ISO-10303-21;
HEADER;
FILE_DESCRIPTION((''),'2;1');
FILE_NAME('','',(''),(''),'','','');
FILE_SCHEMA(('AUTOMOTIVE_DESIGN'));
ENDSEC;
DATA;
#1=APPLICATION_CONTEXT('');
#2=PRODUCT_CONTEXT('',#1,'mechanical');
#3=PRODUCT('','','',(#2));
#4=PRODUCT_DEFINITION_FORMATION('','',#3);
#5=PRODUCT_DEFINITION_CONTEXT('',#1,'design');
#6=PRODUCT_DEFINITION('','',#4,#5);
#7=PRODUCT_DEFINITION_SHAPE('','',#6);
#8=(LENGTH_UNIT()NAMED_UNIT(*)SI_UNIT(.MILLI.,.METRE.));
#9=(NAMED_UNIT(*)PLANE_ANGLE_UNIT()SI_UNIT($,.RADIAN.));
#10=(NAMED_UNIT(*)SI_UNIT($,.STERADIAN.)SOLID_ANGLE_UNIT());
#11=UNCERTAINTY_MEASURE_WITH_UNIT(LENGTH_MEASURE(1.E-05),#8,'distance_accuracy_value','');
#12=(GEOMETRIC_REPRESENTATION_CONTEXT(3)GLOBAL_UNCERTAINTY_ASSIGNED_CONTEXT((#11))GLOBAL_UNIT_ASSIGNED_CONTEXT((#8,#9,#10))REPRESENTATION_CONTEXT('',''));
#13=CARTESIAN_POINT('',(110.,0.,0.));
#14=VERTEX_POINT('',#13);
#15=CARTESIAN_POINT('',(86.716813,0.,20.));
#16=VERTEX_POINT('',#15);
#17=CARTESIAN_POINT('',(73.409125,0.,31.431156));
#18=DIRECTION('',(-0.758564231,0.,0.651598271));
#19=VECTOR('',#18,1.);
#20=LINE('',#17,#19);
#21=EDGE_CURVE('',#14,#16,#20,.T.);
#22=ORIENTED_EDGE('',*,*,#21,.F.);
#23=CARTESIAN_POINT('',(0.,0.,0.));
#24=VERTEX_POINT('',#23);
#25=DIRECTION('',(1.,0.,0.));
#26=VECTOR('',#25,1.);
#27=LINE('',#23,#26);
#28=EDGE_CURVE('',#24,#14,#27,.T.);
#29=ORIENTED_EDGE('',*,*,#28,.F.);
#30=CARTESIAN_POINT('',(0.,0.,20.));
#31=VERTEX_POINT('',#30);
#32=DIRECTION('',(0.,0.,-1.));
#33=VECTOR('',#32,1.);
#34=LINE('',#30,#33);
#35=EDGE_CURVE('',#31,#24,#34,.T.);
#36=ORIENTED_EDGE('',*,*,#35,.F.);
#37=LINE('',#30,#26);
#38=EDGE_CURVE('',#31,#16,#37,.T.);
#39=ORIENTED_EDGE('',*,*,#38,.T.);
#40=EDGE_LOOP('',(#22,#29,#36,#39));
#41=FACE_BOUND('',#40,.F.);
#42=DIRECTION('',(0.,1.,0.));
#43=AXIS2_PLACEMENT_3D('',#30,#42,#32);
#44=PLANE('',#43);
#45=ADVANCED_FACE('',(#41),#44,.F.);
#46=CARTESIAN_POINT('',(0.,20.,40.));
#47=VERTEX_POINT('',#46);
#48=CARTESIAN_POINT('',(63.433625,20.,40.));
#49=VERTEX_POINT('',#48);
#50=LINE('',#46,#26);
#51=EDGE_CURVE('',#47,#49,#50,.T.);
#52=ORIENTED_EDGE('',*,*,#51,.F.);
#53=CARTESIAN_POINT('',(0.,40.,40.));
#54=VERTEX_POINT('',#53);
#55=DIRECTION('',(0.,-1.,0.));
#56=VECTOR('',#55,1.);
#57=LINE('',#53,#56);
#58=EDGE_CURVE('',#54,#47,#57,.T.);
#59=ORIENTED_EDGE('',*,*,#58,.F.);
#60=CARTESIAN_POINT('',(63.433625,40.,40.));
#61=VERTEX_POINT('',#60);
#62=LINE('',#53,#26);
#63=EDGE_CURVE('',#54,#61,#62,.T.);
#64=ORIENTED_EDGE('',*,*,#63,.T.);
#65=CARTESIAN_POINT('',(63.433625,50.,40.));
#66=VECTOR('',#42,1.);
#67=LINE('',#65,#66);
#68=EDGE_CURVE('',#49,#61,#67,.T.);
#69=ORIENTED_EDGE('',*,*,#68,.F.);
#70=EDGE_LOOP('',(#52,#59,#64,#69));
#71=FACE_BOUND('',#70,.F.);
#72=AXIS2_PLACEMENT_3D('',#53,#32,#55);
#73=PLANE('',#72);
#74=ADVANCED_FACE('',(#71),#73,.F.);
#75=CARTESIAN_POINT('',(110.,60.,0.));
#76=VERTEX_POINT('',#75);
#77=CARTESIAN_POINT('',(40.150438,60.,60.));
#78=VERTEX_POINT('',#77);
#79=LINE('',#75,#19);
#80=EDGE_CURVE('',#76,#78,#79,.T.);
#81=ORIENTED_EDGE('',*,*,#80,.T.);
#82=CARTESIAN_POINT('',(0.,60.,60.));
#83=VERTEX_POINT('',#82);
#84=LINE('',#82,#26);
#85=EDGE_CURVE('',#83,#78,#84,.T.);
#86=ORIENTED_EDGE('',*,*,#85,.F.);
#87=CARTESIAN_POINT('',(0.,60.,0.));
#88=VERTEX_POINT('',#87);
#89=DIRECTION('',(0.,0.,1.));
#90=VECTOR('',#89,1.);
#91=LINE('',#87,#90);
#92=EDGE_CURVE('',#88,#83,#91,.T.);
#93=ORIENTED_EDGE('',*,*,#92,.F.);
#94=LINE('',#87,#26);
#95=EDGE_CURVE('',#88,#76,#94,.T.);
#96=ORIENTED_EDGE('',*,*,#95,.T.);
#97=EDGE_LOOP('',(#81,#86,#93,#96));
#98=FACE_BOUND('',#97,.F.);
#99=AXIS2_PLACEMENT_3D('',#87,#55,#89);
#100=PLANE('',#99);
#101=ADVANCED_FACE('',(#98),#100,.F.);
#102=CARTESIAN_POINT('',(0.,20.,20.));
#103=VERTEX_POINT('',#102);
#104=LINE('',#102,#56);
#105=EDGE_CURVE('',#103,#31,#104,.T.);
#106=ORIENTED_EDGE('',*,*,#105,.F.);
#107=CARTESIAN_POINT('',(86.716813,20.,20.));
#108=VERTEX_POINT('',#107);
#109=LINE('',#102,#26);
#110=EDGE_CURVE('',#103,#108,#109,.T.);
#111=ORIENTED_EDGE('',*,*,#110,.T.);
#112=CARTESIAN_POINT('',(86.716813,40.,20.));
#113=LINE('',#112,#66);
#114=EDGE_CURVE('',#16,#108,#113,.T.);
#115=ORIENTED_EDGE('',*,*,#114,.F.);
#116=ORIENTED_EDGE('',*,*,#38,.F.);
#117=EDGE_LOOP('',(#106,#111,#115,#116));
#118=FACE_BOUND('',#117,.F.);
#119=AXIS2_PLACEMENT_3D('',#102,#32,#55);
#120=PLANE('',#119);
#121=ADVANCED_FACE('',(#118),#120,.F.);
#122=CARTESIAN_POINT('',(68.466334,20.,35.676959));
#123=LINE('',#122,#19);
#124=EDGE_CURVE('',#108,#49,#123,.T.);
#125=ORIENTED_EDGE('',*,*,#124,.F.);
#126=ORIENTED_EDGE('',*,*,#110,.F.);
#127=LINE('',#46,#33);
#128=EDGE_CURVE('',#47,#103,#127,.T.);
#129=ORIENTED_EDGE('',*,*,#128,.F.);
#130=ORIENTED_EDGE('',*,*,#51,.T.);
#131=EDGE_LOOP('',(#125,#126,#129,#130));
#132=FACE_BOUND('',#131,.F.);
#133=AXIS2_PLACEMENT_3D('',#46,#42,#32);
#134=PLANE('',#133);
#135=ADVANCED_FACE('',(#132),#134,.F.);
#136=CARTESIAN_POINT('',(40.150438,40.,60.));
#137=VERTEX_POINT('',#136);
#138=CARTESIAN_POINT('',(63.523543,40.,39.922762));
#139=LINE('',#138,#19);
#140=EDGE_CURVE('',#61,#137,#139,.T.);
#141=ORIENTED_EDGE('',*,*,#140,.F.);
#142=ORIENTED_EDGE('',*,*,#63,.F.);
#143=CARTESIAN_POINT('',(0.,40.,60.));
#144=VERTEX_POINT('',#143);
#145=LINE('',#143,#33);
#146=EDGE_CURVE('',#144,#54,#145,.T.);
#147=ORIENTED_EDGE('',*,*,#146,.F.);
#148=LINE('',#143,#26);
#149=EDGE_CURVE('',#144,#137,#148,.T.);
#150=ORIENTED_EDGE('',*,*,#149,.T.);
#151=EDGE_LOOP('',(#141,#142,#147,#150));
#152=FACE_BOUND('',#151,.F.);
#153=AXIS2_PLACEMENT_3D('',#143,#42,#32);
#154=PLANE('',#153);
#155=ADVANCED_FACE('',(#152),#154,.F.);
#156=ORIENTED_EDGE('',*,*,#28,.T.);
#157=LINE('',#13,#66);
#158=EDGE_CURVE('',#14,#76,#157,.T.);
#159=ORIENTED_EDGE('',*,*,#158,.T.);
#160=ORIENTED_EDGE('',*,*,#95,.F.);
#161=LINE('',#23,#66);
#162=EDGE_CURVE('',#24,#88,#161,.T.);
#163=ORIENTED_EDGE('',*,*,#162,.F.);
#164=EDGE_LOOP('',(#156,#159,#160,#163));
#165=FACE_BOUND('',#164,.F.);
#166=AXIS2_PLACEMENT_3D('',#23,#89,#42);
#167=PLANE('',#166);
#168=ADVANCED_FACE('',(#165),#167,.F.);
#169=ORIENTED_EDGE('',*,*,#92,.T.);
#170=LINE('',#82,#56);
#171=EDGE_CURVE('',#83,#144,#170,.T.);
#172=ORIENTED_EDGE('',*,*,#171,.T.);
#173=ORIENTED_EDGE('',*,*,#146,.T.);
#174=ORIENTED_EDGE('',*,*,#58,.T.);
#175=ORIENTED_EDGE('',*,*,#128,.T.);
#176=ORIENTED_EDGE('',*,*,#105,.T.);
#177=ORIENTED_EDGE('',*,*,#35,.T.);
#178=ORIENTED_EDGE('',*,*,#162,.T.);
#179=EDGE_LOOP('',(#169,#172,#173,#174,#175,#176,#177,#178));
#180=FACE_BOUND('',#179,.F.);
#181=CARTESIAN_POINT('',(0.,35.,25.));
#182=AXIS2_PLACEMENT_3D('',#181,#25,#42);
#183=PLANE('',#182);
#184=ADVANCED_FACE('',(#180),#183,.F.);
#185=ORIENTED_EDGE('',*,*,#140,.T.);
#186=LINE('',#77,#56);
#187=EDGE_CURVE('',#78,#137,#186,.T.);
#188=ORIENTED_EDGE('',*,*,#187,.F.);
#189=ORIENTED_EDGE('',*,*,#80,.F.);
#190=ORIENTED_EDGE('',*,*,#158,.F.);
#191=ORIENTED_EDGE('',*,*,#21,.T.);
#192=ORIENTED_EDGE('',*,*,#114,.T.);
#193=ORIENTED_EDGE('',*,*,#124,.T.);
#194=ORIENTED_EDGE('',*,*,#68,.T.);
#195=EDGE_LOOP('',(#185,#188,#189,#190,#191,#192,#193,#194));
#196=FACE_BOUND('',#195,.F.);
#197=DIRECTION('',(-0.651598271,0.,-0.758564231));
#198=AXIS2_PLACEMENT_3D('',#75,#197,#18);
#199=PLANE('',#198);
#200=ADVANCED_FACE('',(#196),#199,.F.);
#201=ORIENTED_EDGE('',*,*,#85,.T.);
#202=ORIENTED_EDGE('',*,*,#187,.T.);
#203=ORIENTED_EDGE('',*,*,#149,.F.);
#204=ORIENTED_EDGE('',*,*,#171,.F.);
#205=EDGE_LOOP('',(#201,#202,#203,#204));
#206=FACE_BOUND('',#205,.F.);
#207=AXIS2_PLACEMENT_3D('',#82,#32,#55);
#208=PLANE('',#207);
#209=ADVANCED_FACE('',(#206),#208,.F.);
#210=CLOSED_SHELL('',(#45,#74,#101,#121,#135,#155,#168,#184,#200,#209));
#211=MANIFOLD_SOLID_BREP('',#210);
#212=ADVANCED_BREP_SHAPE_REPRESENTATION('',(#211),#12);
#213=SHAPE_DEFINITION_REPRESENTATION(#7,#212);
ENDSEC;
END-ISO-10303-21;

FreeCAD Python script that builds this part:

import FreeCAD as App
import Part
import Sketcher
from FreeCAD import Vector
Q = App.Units.Quantity

doc = App.newDocument("Part")
params = doc.addObject("Spreadsheet::Sheet", "Params")
for row, (alias, value) in enumerate([
    ("sketch1_width", "60 mm"),
    ("pad1_length", "110 mm"),
    ("sketch2_height", "60 mm"),
], start=1):
    params.set(f"A{row}", alias)
    params.set(f"B{row}", "=" + value)
    params.setAlias(f"B{row}", alias)

body = doc.addObject("PartDesign::Body", "Body")

# Sketch on YZ plane
sketch1 = body.newObject("Sketcher::SketchObject", "Sketch")
sketch1.AttachmentSupport = (doc.getObject("YZ_Plane"), [""])
sketch1.MapMode = "FlatFace"
sketch1.addGeometry([
    Part.LineSegment(Vector(0, 20, 0), Vector(0, 0, 0)),  # 0
    Part.LineSegment(Vector(0, 0, 0), Vector(60, 0, 0)),  # 1
    Part.LineSegment(Vector(60, 0, 0), Vector(60, 60, 0)),  # 2
    Part.LineSegment(Vector(60, 60, 0), Vector(40, 60, 0)),  # 3
    Part.LineSegment(Vector(40, 60, 0), Vector(40, 40, 0)),  # 4
    Part.LineSegment(Vector(40, 40, 0), Vector(20, 40, 0)),  # 5
    Part.LineSegment(Vector(20, 40, 0), Vector(20, 20, 0)),  # 6
    Part.LineSegment(Vector(20, 20, 0), Vector(0, 20, 0)),  # 7
], False)
sketch1.addConstraint([
    Sketcher.Constraint("Coincident", 0, 2, 1, 1),
    Sketcher.Constraint("Coincident", 1, 2, 2, 1),
    Sketcher.Constraint("Coincident", 2, 2, 3, 1),
    Sketcher.Constraint("Coincident", 3, 2, 4, 1),
    Sketcher.Constraint("Coincident", 4, 2, 5, 1),
    Sketcher.Constraint("Coincident", 5, 2, 6, 1),
    Sketcher.Constraint("Coincident", 6, 2, 7, 1),
    Sketcher.Constraint("Coincident", 7, 2, 0, 1),
    Sketcher.Constraint("Vertical", 0),
    Sketcher.Constraint("Horizontal", 1),
    Sketcher.Constraint("Vertical", 2),
    Sketcher.Constraint("Horizontal", 3),
    Sketcher.Constraint("Vertical", 4),
    Sketcher.Constraint("Horizontal", 5),
    Sketcher.Constraint("Vertical", 6),
    Sketcher.Constraint("Horizontal", 7),
    Sketcher.Constraint("Coincident", 0, 2, -1, 1),
    Sketcher.Constraint("Equal", 3, 5),
    Sketcher.Constraint("Equal", 5, 7),
    Sketcher.Constraint("Equal", 7, 0),
    Sketcher.Constraint("Equal", 1, 2),
    Sketcher.Constraint("Equal", 0, 4),
    Sketcher.Constraint("DistanceX", 1, 1, 1, 2, Q("60 mm")),
])
sketch1.setExpression("Constraints[22]", "Params.sketch1_width")
pad1 = body.newObject("PartDesign::Pad", "Pad")
pad1.Profile = sketch1
pad1.setExpression("Length", "Params.pad1_length")

# Sketch on XZ plane
sketch2 = body.newObject("Sketcher::SketchObject", "Sketch001")
sketch2.AttachmentSupport = (doc.getObject("XZ_Plane"), [""])
sketch2.MapMode = "FlatFace"
sketch2.AttachmentOffset = App.Placement(Vector(0, 0, -60), App.Rotation())
sketch2.addGeometry([
    Part.LineSegment(Vector(110, 0, 0), Vector(40, 60, 0)),
    Part.LineSegment(Vector(40, 60, 0), Vector(110, 60, 0)),
    Part.LineSegment(Vector(110, 60, 0), Vector(110, 0, 0)),
], False)
sketch2.addConstraint([
    Sketcher.Constraint("Coincident", 0, 2, 1, 1),
    Sketcher.Constraint("Coincident", 1, 2, 2, 1),
    Sketcher.Constraint("Coincident", 2, 2, 0, 1),
    Sketcher.Constraint("Horizontal", 1),
    Sketcher.Constraint("Vertical", 2),
    Sketcher.Constraint("PointOnObject", 2, 2, -1),
    Sketcher.Constraint("DistanceY", 2, 2, 2, 1, Q("60 mm")),
    Sketcher.Constraint("DistanceX", -1, 1, 1, 2, Q("110 mm")),
    Sketcher.Constraint("DistanceX", 1, 1, 1, 2, Q("69.849562 mm")),
])
sketch2.setExpression("Constraints[6]", "Params.sketch2_height")
pocket1 = body.newObject("PartDesign::Pocket", "Pocket")
pocket1.Profile = sketch2
pocket1.Type = "ThroughAll"
pocket1.Reversed = True

doc.recompute()
